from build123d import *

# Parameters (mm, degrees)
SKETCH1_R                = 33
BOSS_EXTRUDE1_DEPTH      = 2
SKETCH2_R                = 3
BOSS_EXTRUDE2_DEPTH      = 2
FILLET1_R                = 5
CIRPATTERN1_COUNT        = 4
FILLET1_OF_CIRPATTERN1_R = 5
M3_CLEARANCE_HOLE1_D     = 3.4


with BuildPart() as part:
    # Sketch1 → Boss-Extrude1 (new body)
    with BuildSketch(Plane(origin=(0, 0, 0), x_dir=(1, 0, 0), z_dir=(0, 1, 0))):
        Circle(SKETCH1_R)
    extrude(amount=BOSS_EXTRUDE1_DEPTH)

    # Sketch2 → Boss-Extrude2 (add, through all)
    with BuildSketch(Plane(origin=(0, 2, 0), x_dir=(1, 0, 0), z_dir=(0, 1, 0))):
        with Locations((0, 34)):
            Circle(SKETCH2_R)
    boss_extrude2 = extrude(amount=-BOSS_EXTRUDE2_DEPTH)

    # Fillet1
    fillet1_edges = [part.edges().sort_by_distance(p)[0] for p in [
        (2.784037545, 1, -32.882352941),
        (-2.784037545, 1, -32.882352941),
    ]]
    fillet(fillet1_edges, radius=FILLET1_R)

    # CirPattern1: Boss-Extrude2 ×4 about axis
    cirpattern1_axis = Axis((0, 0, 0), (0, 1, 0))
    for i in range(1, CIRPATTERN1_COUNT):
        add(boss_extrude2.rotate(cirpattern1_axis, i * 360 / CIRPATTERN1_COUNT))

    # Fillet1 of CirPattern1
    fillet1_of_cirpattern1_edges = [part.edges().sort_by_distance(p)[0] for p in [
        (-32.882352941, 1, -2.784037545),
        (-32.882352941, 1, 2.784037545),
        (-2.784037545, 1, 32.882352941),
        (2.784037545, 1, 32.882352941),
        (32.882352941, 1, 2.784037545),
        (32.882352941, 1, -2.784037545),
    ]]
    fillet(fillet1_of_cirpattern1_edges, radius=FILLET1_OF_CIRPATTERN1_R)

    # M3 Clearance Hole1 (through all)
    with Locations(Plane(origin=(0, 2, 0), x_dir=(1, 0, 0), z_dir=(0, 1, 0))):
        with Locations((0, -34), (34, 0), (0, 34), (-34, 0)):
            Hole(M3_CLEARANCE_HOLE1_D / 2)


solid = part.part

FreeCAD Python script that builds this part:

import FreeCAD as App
import Part
import Sketcher
from FreeCAD import Vector


def edges_at(feature, points):
    """Names of the edges that pass closest to the given points."""
    edges = feature.Shape.Edges
    near = lambda p: min(range(len(edges)), key=lambda i: edges[i].distToShape(Part.Vertex(*p))[0])
    return sorted({f"Edge{near(p) + 1}" for p in points})

doc = App.newDocument("Part")
body = doc.addObject("PartDesign::Body", "Body")

# Sketch on XZ plane
sketch1 = body.newObject("Sketcher::SketchObject", "Sketch")
sketch1.AttachmentSupport = (doc.getObject("XZ_Plane"), [""])
sketch1.MapMode = "FlatFace"
sketch1.addGeometry(Part.Circle(Vector(0, 0, 0), Vector(0, 0, 1), 33), False)
sketch1.addConstraint(Sketcher.Constraint("Coincident", 0, 3, -1, 1))
sketch1.addConstraint(Sketcher.Constraint("Diameter", 0, 66.0))
pad1 = body.newObject("PartDesign::Pad", "Pad")
pad1.Profile = sketch1
pad1.Length = 2
pad1.Reversed = True

# Sketch on XZ plane
sketch2 = body.newObject("Sketcher::SketchObject", "Sketch001")
sketch2.AttachmentSupport = (doc.getObject("XZ_Plane"), [""])
sketch2.MapMode = "FlatFace"
sketch2.AttachmentOffset = App.Placement(Vector(0, 0, -2), App.Rotation())
sketch2.addGeometry(Part.Circle(Vector(0, -34, 0), Vector(0, 0, 1), 3), False)
sketch2.addConstraint(Sketcher.Constraint("PointOnObject", 0, 3, -2))
sketch2.addConstraint(Sketcher.Constraint("Diameter", 0, 6.0))
sketch2.addConstraint(Sketcher.Constraint("DistanceY", 0, 3, -1, 1, 34.0))
pad2 = body.newObject("PartDesign::Pad", "Pad001")
pad2.Profile = sketch2
pad2.Length = 2
doc.recompute()

fillet = body.newObject("PartDesign::Fillet", "Fillet")
fillet.Base = (pad2, edges_at(pad2, [(2.784, 1, -32.882), (-2.784, 1, -32.882)]))
fillet.Radius = 5
doc.recompute()

polarpattern = body.newObject("PartDesign::PolarPattern", "PolarPattern")
polarpattern.Originals = [pad2]
polarpattern.Axis = (doc.getObject("Y_Axis"), [""])
polarpattern.Angle = 360
polarpattern.Occurrences = 4
body.Tip = polarpattern
doc.recompute()

fillet2 = body.newObject("PartDesign::Fillet", "Fillet001")
fillet2.Base = (polarpattern, edges_at(polarpattern, [
    (-32.882, 1, -2.784),
    (-32.882, 1, 2.784),
    (-2.784, 1, 32.882),
    (2.784, 1, 32.882),
    (32.882, 1, 2.784),
    (32.882, 1, -2.784),
]))
fillet2.Radius = 5

# Sketch on XZ plane
sketch3 = body.newObject("Sketcher::SketchObject", "Sketch002")
sketch3.AttachmentSupport = (doc.getObject("XZ_Plane"), [""])
sketch3.MapMode = "FlatFace"
sketch3.AttachmentOffset = App.Placement(Vector(0, 0, -2), App.Rotation())
sketch3.addGeometry(Part.Circle(Vector(0, 34, 0), Vector(0, 0, 1), 1.7), False)
sketch3.addGeometry(Part.Circle(Vector(34, 0, 0), Vector(0, 0, 1), 1.7), False)
sketch3.addGeometry(Part.Circle(Vector(0, -34, 0), Vector(0, 0, 1), 1.7), False)
sketch3.addGeometry(Part.Circle(Vector(-34, 0, 0), Vector(0, 0, 1), 1.7), False)
sketch3.addConstraint(Sketcher.Constraint("Equal", 0, 1))
sketch3.addConstraint(Sketcher.Constraint("Equal", 1, 2))
sketch3.addConstraint(Sketcher.Constraint("Equal", 2, 3))
sketch3.addConstraint(Sketcher.Constraint("Symmetric", 0, 3, 2, 3, -1, 1))
sketch3.addConstraint(Sketcher.Constraint("Symmetric", 1, 3, 3, 3, -1, 1))
sketch3.addConstraint(Sketcher.Constraint("PointOnObject", 0, 3, -2))
sketch3.addConstraint(Sketcher.Constraint("PointOnObject", 1, 3, -1))
sketch3.addConstraint(Sketcher.Constraint("Diameter", 0, 3.4))
sketch3.addConstraint(Sketcher.Constraint("DistanceY", -1, 1, 0, 3, 34.0))
sketch3.addConstraint(Sketcher.Constraint("DistanceX", -1, 1, 1, 3, 34.0))
doc.recompute()
hole = body.newObject("PartDesign::Hole", "Hole")
hole.Profile = sketch3
hole.ThreadType = "None"
hole.Diameter = 3.4
hole.DepthType = "ThroughAll"
hole.Reversed = True

doc.recompute()
